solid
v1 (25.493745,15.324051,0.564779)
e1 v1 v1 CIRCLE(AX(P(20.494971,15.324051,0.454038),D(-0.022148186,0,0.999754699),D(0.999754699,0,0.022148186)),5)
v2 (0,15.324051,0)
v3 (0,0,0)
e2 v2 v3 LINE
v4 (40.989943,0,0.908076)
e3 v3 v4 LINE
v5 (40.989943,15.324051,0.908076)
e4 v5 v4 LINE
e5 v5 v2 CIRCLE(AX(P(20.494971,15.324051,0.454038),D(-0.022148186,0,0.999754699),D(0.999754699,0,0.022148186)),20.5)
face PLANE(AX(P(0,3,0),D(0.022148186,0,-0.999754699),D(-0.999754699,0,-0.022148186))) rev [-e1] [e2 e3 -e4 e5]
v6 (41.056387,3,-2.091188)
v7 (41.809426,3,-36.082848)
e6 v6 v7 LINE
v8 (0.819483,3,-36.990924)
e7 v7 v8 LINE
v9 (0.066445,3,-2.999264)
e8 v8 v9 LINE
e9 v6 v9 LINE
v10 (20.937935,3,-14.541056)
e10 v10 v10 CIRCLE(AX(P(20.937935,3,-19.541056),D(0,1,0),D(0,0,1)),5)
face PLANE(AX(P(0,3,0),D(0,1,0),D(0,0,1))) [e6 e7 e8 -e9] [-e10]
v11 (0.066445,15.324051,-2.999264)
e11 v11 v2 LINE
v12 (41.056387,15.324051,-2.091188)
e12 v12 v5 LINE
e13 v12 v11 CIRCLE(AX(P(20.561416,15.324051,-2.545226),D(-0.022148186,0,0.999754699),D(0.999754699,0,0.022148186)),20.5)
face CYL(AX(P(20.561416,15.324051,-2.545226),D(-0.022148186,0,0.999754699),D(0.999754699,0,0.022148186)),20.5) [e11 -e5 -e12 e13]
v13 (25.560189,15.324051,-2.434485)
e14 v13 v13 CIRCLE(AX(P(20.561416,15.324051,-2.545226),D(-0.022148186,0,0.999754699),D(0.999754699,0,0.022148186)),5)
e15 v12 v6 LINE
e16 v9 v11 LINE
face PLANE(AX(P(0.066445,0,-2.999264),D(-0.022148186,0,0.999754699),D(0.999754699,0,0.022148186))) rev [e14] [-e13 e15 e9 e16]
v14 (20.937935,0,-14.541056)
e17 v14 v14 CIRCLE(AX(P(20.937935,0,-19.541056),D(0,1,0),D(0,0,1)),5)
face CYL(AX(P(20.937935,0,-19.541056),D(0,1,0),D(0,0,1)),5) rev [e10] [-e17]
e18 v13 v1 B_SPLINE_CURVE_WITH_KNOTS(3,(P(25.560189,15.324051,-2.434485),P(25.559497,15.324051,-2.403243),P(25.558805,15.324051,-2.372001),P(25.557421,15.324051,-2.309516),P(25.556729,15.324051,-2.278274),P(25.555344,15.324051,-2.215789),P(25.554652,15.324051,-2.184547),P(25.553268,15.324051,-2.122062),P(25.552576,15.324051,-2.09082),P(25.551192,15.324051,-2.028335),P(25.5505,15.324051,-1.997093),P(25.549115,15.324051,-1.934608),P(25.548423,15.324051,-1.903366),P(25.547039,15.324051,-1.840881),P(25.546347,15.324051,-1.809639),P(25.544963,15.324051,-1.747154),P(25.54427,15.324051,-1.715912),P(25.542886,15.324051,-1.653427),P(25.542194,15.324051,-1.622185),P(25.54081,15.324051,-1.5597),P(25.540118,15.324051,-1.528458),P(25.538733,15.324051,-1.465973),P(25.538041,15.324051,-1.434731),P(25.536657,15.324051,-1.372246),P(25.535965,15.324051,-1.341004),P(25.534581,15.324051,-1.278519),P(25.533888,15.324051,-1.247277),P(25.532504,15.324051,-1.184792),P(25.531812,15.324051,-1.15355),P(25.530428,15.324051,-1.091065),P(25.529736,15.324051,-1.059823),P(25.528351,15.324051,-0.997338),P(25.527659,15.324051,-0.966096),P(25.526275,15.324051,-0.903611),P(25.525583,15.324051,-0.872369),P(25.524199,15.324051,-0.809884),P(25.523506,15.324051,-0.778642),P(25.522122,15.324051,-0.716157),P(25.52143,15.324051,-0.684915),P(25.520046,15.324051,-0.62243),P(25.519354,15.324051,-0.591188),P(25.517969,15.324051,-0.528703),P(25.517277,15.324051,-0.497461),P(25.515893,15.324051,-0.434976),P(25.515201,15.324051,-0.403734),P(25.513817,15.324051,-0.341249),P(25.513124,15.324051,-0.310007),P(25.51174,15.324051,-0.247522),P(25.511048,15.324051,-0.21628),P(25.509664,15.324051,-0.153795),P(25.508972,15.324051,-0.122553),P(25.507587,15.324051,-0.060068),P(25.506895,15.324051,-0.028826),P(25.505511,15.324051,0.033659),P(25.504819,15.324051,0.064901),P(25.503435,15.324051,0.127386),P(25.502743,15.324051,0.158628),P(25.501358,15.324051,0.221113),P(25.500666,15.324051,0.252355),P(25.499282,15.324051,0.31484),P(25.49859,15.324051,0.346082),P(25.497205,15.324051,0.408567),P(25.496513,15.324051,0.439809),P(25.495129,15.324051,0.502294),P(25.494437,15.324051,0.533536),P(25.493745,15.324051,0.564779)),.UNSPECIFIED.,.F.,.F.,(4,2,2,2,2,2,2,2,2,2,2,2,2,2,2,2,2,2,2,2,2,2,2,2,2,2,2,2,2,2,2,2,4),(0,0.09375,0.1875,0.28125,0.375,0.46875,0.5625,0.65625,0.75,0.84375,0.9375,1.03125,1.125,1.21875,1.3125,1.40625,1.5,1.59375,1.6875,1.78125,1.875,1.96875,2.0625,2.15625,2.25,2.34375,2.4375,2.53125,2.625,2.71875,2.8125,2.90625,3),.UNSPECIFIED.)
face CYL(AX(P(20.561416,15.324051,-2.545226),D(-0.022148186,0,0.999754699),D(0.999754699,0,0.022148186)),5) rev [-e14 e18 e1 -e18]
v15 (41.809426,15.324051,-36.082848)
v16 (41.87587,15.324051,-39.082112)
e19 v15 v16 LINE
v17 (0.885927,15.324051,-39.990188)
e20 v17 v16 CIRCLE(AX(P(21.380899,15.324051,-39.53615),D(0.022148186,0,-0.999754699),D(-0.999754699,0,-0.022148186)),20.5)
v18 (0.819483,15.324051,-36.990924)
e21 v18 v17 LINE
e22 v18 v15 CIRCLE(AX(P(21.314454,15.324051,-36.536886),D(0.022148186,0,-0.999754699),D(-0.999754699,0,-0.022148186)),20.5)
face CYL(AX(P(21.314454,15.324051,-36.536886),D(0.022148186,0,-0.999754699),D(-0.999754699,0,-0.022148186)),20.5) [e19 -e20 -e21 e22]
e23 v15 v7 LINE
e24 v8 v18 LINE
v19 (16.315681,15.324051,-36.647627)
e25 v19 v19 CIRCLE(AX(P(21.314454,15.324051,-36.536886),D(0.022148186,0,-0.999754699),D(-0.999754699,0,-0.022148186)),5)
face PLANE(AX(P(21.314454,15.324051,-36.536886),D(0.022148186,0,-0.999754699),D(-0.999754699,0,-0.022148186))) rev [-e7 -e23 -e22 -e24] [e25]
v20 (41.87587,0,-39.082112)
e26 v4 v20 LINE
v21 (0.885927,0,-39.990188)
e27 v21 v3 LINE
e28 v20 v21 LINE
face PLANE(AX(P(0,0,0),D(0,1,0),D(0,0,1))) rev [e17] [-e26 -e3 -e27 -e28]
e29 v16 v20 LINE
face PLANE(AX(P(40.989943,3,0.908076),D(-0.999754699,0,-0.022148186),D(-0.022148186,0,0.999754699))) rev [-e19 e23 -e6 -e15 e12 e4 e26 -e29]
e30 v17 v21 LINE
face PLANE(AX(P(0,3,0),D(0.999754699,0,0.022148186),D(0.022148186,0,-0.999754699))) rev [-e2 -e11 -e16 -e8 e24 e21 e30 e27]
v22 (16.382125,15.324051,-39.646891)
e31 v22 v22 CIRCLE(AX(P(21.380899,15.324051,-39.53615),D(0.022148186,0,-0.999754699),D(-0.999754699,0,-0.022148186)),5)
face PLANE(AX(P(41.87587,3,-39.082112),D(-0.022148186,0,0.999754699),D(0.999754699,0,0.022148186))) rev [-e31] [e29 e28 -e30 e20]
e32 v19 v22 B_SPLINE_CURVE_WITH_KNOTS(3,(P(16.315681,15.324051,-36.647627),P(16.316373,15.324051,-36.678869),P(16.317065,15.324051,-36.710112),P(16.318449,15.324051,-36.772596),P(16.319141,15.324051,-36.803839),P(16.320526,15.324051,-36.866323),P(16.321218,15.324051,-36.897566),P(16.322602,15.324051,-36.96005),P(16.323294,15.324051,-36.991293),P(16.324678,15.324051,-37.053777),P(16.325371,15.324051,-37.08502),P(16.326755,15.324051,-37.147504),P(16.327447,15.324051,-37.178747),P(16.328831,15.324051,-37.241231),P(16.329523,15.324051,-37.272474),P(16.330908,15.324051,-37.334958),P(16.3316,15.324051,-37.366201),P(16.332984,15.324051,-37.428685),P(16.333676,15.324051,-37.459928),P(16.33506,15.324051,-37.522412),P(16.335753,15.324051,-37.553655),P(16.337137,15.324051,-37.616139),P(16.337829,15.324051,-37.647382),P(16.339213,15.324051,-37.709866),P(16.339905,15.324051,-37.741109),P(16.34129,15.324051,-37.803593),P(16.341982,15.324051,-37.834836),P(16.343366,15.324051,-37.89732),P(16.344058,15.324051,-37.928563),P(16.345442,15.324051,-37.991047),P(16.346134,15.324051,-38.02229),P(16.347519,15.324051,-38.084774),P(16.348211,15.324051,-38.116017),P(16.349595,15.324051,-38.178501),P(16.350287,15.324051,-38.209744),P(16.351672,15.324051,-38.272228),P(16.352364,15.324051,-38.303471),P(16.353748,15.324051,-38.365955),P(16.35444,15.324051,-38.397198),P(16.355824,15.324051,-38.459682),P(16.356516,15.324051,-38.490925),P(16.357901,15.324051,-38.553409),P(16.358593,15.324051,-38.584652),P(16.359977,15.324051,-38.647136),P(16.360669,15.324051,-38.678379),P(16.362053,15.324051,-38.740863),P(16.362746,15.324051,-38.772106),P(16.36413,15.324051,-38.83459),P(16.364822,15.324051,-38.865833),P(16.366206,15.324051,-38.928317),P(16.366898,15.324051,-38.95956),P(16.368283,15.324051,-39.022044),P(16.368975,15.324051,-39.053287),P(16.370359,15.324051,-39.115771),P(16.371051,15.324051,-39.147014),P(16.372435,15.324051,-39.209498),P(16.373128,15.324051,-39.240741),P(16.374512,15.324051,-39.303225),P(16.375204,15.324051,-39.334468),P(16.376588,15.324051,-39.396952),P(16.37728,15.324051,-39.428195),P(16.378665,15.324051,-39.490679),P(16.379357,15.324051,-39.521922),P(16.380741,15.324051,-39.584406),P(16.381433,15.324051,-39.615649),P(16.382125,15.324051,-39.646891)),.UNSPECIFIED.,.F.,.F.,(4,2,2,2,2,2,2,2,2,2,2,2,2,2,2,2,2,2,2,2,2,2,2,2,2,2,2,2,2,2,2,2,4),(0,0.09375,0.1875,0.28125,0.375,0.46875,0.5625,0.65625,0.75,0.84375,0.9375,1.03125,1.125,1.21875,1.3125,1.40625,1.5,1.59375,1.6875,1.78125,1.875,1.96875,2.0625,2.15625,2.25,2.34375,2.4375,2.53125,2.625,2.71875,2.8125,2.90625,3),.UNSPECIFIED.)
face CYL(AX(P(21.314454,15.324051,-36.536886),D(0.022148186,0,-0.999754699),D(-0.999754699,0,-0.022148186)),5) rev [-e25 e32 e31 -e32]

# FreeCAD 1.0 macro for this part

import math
import FreeCAD as App
import Part
import Sketcher
from FreeCAD import Vector

doc = App.newDocument("Part")
params = doc.addObject("Spreadsheet::Sheet", "Params")
for row, (alias, value) in enumerate([
    ("sketch1_length", "41 mm"),
    ("sketch1_length2", "40 mm"),
    ("pad1_length", "3 mm"),
    ("sketch2_diameter", "10 mm"),
    ("pocket1_length", "3 mm"),
    ("sketch3_diameter", "10 mm"),
    ("sketch3_radius", "20.5 mm"),
    ("pad2_length", "3 mm"),
    ("sketch4_diameter", "10 mm"),
    ("sketch4_radius", "20.5 mm"),
    ("pad3_length", "3 mm"),
], start=1):
    params.set(f"A{row}", alias)
    params.set(f"B{row}", "=" + value)
    params.setAlias(f"B{row}", alias)

body = doc.addObject("PartDesign::Body", "Body")

# Sketch on XZ plane
sketch1 = body.newObject("Sketcher::SketchObject", "Sketch")
sketch1.AttachmentSupport = (doc.getObject("XZ_Plane"), [""])
sketch1.MapMode = "FlatFace"
sketch1.addGeometry(Part.LineSegment(Vector(0, 0, 0), Vector(41, 1, 0)), False)
sketch1.addGeometry(Part.LineSegment(Vector(41, 1, 0), Vector(42, -39, 0)), False)
sketch1.addGeometry(Part.LineSegment(Vector(42, -39, 0), Vector(1, -40, 0)), False)
sketch1.addGeometry(Part.LineSegment(Vector(1, -40, 0), Vector(0, 0, 0)), False)
sketch1.addConstraint(Sketcher.Constraint("Coincident", 0, 2, 1, 1))
sketch1.addConstraint(Sketcher.Constraint("Coincident", 1, 2, 2, 1))
sketch1.addConstraint(Sketcher.Constraint("Coincident", 2, 2, 3, 1))
sketch1.addConstraint(Sketcher.Constraint("Coincident", 3, 2, 0, 1))
sketch1.addConstraint(Sketcher.Constraint("Coincident", 3, 2, -1, 1))
sketch1.addConstraint(Sketcher.Constraint("Perpendicular", 0, 1))
sketch1.addConstraint(Sketcher.Constraint("Perpendicular", 1, 2))
sketch1.addConstraint(Sketcher.Constraint("Perpendicular", 2, 3))
sketch1.addConstraint(Sketcher.Constraint("Distance", 0, 41.0))
sketch1.addConstraint(Sketcher.Constraint("Distance", 1, 40.0))
sketch1.addConstraint(Sketcher.Constraint("DistanceX", -1, 1, 1, 2, 41.87587))
sketch1.setExpression("Constraints[8]", "Params.sketch1_length")
sketch1.setExpression("Constraints[9]", "Params.sketch1_length2")
pad1 = body.newObject("PartDesign::Pad", "Pad")
pad1.Profile = sketch1
pad1.setExpression("Length", "Params.pad1_length")
pad1.Reversed = True

# Sketch on XZ plane
sketch2 = body.newObject("Sketcher::SketchObject", "Sketch001")
sketch2.AttachmentSupport = (doc.getObject("XZ_Plane"), [""])
sketch2.MapMode = "FlatFace"
sketch2.AttachmentOffset = App.Placement(Vector(0, 0, -3), App.Rotation())
sketch2.addGeometry(Part.Circle(Vector(21, -20, 0), Vector(0, 0, 1), 5), False)
sketch2.addConstraint(Sketcher.Constraint("Diameter", 0, 10.0))
sketch2.addConstraint(Sketcher.Constraint("DistanceX", -1, 1, 0, 3, 20.937935))
sketch2.addConstraint(Sketcher.Constraint("DistanceY", 0, 3, -1, 1, 19.541056))
sketch2.setExpression("Constraints[0]", "Params.sketch2_diameter")
pocket1 = body.newObject("PartDesign::Pocket", "Pocket")
pocket1.Profile = sketch2
pocket1.setExpression("Length", "Params.pocket1_length")
pocket1.Reversed = True

# Sketch on an angled plane
sketch3 = body.newObject("Sketcher::SketchObject", "Sketch002")
sketch3.Placement = App.Placement(Vector(0, 0, 0), App.Rotation(Vector(0.999754699, 0, 0.022148186), Vector(0, 1, 0), Vector(-0.022148186, 0, 0.999754699), "ZXY"))
sketch3.addGeometry(Part.LineSegment(Vector(41, 3, 0), Vector(41, 15, 0)), False)
sketch3.addGeometry(Part.ArcOfCircle(Part.Circle(Vector(21, 15, 0), Vector(0, 0, 1), 20), math.radians(0), math.radians(180)), False)
sketch3.addGeometry(Part.LineSegment(Vector(0, 15, 0), Vector(0, 3, 0)), False)
sketch3.addGeometry(Part.LineSegment(Vector(0, 3, 0), Vector(41, 3, 0)), False)
sketch3.addGeometry(Part.Circle(Vector(21, 15, 0), Vector(0, 0, 1), 5), False)
sketch3.addConstraint(Sketcher.Constraint("Tangent", 0, 2, 1, 1))
sketch3.addConstraint(Sketcher.Constraint("Tangent", 1, 2, 2, 1))
sketch3.addConstraint(Sketcher.Constraint("Coincident", 2, 2, 3, 1))
sketch3.addConstraint(Sketcher.Constraint("Coincident", 3, 2, 0, 1))
sketch3.addConstraint(Sketcher.Constraint("Vertical", 0))
sketch3.addConstraint(Sketcher.Constraint("Vertical", 2))
sketch3.addConstraint(Sketcher.Constraint("Horizontal", 3))
sketch3.addConstraint(Sketcher.Constraint("Coincident", 4, 3, 1, 3))
sketch3.addConstraint(Sketcher.Constraint("PointOnObject", 1, 2, -2))
sketch3.addConstraint(Sketcher.Constraint("Diameter", 4, 10.0))
sketch3.addConstraint(Sketcher.Constraint("Radius", 1, 20.5))
sketch3.addConstraint(Sketcher.Constraint("DistanceY", -1, 1, 2, 2, 3.0))
sketch3.addConstraint(Sketcher.Constraint("DistanceY", 0, 1, 0, 2, 12.324051))
sketch3.setExpression("Constraints[9]", "Params.sketch3_diameter")
sketch3.setExpression("Constraints[10]", "Params.sketch3_radius")
pad2 = body.newObject("PartDesign::Pad", "Pad001")
pad2.Profile = sketch3
pad2.setExpression("Length", "Params.pad2_length")
pad2.Reversed = True

# Sketch on an angled plane
sketch4 = body.newObject("Sketcher::SketchObject", "Sketch003")
sketch4.Placement = App.Placement(Vector(0.819483, 0, -36.990924), App.Rotation(Vector(-0.999754699, 0, -0.022148186), Vector(0, 1, 0), Vector(0.022148186, 0, -0.999754699), "ZXY"))
sketch4.addGeometry(Part.LineSegment(Vector(-41, 15, 0), Vector(-41, 3, 0)), False)
sketch4.addGeometry(Part.LineSegment(Vector(-41, 3, 0), Vector(0, 3, 0)), False)
sketch4.addGeometry(Part.LineSegment(Vector(0, 3, 0), Vector(0, 15, 0)), False)
sketch4.addGeometry(Part.ArcOfCircle(Part.Circle(Vector(-21, 15, 0), Vector(0, 0, 1), 20), math.radians(0), math.radians(180)), False)
sketch4.addGeometry(Part.Circle(Vector(-21, 15, 0), Vector(0, 0, 1), 5), False)
sketch4.addConstraint(Sketcher.Constraint("Coincident", 0, 2, 1, 1))
sketch4.addConstraint(Sketcher.Constraint("Coincident", 1, 2, 2, 1))
sketch4.addConstraint(Sketcher.Constraint("Tangent", 2, 2, 3, 1))
sketch4.addConstraint(Sketcher.Constraint("Tangent", 3, 2, 0, 1))
sketch4.addConstraint(Sketcher.Constraint("Vertical", 0))
sketch4.addConstraint(Sketcher.Constraint("Horizontal", 1))
sketch4.addConstraint(Sketcher.Constraint("Vertical", 2))
sketch4.addConstraint(Sketcher.Constraint("Coincident", 4, 3, 3, 3))
sketch4.addConstraint(Sketcher.Constraint("PointOnObject", 1, 2, -2))
sketch4.addConstraint(Sketcher.Constraint("Diameter", 4, 10.0))
sketch4.addConstraint(Sketcher.Constraint("Radius", 3, 20.5))
sketch4.addConstraint(Sketcher.Constraint("DistanceY", -1, 1, 0, 2, 3.0))
sketch4.addConstraint(Sketcher.Constraint("DistanceY", 0, 2, 0, 1, 12.324051))
sketch4.setExpression("Constraints[9]", "Params.sketch4_diameter")
sketch4.setExpression("Constraints[10]", "Params.sketch4_radius")
pad3 = body.newObject("PartDesign::Pad", "Pad002")
pad3.Profile = sketch4
pad3.setExpression("Length", "Params.pad3_length")

doc.recompute()
